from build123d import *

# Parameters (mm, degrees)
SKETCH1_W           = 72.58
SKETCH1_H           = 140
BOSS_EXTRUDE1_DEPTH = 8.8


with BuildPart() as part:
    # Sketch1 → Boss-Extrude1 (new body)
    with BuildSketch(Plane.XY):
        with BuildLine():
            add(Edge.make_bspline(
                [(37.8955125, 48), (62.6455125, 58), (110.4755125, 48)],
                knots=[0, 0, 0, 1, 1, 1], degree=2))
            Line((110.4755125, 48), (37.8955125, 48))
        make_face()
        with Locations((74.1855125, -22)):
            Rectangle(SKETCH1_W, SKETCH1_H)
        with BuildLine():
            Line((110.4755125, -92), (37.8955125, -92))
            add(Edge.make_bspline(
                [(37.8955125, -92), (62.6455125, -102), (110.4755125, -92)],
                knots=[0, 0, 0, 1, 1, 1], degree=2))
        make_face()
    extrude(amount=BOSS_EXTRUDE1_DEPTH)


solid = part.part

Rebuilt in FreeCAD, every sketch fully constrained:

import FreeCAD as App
import Part
import Sketcher

doc = App.newDocument("Part")
body = doc.addObject("PartDesign::Body", "Body")

sketch1 = body.newObject("Sketcher::SketchObject", "Sketch")
sketch1.AttachmentSupport = (doc.getObject("XY_Plane"), [""])
sketch1.MapMode = "FlatFace"
sketch1.addGeometry([
    Part.BSplineCurve([App.Vector(37.895513, 48, 0), App.Vector(62.645513, 58, 0), App.Vector(110.475512, 48, 0)], [3, 3], [0, 1], False, 2, [1, 1, 1], False),
    Part.LineSegment(App.Vector(37.895513, 48, 0), App.Vector(37.895513, -92, 0)),
    Part.BSplineCurve([App.Vector(37.895513, -92, 0), App.Vector(62.645513, -102, 0), App.Vector(110.475512, -92, 0)], [3, 3], [0, 1], False, 2, [1, 1, 1], False),
    Part.LineSegment(App.Vector(110.475512, -92, 0), App.Vector(110.475512, 48, 0)),
], False)
sketch1.addConstraint([
    Sketcher.Constraint("Block", 0),
    Sketcher.Constraint("Block", 2),
    Sketcher.Constraint("Coincident", 0, 1, 1, 1),
    Sketcher.Constraint("Coincident", 1, 2, 2, 1),
    Sketcher.Constraint("Coincident", 2, 2, 3, 1),
    Sketcher.Constraint("Coincident", 3, 2, 0, 2),
])
pad1 = body.newObject("PartDesign::Pad", "Pad")
pad1.Profile = sketch1
pad1.Length = 8.8

doc.recompute()
